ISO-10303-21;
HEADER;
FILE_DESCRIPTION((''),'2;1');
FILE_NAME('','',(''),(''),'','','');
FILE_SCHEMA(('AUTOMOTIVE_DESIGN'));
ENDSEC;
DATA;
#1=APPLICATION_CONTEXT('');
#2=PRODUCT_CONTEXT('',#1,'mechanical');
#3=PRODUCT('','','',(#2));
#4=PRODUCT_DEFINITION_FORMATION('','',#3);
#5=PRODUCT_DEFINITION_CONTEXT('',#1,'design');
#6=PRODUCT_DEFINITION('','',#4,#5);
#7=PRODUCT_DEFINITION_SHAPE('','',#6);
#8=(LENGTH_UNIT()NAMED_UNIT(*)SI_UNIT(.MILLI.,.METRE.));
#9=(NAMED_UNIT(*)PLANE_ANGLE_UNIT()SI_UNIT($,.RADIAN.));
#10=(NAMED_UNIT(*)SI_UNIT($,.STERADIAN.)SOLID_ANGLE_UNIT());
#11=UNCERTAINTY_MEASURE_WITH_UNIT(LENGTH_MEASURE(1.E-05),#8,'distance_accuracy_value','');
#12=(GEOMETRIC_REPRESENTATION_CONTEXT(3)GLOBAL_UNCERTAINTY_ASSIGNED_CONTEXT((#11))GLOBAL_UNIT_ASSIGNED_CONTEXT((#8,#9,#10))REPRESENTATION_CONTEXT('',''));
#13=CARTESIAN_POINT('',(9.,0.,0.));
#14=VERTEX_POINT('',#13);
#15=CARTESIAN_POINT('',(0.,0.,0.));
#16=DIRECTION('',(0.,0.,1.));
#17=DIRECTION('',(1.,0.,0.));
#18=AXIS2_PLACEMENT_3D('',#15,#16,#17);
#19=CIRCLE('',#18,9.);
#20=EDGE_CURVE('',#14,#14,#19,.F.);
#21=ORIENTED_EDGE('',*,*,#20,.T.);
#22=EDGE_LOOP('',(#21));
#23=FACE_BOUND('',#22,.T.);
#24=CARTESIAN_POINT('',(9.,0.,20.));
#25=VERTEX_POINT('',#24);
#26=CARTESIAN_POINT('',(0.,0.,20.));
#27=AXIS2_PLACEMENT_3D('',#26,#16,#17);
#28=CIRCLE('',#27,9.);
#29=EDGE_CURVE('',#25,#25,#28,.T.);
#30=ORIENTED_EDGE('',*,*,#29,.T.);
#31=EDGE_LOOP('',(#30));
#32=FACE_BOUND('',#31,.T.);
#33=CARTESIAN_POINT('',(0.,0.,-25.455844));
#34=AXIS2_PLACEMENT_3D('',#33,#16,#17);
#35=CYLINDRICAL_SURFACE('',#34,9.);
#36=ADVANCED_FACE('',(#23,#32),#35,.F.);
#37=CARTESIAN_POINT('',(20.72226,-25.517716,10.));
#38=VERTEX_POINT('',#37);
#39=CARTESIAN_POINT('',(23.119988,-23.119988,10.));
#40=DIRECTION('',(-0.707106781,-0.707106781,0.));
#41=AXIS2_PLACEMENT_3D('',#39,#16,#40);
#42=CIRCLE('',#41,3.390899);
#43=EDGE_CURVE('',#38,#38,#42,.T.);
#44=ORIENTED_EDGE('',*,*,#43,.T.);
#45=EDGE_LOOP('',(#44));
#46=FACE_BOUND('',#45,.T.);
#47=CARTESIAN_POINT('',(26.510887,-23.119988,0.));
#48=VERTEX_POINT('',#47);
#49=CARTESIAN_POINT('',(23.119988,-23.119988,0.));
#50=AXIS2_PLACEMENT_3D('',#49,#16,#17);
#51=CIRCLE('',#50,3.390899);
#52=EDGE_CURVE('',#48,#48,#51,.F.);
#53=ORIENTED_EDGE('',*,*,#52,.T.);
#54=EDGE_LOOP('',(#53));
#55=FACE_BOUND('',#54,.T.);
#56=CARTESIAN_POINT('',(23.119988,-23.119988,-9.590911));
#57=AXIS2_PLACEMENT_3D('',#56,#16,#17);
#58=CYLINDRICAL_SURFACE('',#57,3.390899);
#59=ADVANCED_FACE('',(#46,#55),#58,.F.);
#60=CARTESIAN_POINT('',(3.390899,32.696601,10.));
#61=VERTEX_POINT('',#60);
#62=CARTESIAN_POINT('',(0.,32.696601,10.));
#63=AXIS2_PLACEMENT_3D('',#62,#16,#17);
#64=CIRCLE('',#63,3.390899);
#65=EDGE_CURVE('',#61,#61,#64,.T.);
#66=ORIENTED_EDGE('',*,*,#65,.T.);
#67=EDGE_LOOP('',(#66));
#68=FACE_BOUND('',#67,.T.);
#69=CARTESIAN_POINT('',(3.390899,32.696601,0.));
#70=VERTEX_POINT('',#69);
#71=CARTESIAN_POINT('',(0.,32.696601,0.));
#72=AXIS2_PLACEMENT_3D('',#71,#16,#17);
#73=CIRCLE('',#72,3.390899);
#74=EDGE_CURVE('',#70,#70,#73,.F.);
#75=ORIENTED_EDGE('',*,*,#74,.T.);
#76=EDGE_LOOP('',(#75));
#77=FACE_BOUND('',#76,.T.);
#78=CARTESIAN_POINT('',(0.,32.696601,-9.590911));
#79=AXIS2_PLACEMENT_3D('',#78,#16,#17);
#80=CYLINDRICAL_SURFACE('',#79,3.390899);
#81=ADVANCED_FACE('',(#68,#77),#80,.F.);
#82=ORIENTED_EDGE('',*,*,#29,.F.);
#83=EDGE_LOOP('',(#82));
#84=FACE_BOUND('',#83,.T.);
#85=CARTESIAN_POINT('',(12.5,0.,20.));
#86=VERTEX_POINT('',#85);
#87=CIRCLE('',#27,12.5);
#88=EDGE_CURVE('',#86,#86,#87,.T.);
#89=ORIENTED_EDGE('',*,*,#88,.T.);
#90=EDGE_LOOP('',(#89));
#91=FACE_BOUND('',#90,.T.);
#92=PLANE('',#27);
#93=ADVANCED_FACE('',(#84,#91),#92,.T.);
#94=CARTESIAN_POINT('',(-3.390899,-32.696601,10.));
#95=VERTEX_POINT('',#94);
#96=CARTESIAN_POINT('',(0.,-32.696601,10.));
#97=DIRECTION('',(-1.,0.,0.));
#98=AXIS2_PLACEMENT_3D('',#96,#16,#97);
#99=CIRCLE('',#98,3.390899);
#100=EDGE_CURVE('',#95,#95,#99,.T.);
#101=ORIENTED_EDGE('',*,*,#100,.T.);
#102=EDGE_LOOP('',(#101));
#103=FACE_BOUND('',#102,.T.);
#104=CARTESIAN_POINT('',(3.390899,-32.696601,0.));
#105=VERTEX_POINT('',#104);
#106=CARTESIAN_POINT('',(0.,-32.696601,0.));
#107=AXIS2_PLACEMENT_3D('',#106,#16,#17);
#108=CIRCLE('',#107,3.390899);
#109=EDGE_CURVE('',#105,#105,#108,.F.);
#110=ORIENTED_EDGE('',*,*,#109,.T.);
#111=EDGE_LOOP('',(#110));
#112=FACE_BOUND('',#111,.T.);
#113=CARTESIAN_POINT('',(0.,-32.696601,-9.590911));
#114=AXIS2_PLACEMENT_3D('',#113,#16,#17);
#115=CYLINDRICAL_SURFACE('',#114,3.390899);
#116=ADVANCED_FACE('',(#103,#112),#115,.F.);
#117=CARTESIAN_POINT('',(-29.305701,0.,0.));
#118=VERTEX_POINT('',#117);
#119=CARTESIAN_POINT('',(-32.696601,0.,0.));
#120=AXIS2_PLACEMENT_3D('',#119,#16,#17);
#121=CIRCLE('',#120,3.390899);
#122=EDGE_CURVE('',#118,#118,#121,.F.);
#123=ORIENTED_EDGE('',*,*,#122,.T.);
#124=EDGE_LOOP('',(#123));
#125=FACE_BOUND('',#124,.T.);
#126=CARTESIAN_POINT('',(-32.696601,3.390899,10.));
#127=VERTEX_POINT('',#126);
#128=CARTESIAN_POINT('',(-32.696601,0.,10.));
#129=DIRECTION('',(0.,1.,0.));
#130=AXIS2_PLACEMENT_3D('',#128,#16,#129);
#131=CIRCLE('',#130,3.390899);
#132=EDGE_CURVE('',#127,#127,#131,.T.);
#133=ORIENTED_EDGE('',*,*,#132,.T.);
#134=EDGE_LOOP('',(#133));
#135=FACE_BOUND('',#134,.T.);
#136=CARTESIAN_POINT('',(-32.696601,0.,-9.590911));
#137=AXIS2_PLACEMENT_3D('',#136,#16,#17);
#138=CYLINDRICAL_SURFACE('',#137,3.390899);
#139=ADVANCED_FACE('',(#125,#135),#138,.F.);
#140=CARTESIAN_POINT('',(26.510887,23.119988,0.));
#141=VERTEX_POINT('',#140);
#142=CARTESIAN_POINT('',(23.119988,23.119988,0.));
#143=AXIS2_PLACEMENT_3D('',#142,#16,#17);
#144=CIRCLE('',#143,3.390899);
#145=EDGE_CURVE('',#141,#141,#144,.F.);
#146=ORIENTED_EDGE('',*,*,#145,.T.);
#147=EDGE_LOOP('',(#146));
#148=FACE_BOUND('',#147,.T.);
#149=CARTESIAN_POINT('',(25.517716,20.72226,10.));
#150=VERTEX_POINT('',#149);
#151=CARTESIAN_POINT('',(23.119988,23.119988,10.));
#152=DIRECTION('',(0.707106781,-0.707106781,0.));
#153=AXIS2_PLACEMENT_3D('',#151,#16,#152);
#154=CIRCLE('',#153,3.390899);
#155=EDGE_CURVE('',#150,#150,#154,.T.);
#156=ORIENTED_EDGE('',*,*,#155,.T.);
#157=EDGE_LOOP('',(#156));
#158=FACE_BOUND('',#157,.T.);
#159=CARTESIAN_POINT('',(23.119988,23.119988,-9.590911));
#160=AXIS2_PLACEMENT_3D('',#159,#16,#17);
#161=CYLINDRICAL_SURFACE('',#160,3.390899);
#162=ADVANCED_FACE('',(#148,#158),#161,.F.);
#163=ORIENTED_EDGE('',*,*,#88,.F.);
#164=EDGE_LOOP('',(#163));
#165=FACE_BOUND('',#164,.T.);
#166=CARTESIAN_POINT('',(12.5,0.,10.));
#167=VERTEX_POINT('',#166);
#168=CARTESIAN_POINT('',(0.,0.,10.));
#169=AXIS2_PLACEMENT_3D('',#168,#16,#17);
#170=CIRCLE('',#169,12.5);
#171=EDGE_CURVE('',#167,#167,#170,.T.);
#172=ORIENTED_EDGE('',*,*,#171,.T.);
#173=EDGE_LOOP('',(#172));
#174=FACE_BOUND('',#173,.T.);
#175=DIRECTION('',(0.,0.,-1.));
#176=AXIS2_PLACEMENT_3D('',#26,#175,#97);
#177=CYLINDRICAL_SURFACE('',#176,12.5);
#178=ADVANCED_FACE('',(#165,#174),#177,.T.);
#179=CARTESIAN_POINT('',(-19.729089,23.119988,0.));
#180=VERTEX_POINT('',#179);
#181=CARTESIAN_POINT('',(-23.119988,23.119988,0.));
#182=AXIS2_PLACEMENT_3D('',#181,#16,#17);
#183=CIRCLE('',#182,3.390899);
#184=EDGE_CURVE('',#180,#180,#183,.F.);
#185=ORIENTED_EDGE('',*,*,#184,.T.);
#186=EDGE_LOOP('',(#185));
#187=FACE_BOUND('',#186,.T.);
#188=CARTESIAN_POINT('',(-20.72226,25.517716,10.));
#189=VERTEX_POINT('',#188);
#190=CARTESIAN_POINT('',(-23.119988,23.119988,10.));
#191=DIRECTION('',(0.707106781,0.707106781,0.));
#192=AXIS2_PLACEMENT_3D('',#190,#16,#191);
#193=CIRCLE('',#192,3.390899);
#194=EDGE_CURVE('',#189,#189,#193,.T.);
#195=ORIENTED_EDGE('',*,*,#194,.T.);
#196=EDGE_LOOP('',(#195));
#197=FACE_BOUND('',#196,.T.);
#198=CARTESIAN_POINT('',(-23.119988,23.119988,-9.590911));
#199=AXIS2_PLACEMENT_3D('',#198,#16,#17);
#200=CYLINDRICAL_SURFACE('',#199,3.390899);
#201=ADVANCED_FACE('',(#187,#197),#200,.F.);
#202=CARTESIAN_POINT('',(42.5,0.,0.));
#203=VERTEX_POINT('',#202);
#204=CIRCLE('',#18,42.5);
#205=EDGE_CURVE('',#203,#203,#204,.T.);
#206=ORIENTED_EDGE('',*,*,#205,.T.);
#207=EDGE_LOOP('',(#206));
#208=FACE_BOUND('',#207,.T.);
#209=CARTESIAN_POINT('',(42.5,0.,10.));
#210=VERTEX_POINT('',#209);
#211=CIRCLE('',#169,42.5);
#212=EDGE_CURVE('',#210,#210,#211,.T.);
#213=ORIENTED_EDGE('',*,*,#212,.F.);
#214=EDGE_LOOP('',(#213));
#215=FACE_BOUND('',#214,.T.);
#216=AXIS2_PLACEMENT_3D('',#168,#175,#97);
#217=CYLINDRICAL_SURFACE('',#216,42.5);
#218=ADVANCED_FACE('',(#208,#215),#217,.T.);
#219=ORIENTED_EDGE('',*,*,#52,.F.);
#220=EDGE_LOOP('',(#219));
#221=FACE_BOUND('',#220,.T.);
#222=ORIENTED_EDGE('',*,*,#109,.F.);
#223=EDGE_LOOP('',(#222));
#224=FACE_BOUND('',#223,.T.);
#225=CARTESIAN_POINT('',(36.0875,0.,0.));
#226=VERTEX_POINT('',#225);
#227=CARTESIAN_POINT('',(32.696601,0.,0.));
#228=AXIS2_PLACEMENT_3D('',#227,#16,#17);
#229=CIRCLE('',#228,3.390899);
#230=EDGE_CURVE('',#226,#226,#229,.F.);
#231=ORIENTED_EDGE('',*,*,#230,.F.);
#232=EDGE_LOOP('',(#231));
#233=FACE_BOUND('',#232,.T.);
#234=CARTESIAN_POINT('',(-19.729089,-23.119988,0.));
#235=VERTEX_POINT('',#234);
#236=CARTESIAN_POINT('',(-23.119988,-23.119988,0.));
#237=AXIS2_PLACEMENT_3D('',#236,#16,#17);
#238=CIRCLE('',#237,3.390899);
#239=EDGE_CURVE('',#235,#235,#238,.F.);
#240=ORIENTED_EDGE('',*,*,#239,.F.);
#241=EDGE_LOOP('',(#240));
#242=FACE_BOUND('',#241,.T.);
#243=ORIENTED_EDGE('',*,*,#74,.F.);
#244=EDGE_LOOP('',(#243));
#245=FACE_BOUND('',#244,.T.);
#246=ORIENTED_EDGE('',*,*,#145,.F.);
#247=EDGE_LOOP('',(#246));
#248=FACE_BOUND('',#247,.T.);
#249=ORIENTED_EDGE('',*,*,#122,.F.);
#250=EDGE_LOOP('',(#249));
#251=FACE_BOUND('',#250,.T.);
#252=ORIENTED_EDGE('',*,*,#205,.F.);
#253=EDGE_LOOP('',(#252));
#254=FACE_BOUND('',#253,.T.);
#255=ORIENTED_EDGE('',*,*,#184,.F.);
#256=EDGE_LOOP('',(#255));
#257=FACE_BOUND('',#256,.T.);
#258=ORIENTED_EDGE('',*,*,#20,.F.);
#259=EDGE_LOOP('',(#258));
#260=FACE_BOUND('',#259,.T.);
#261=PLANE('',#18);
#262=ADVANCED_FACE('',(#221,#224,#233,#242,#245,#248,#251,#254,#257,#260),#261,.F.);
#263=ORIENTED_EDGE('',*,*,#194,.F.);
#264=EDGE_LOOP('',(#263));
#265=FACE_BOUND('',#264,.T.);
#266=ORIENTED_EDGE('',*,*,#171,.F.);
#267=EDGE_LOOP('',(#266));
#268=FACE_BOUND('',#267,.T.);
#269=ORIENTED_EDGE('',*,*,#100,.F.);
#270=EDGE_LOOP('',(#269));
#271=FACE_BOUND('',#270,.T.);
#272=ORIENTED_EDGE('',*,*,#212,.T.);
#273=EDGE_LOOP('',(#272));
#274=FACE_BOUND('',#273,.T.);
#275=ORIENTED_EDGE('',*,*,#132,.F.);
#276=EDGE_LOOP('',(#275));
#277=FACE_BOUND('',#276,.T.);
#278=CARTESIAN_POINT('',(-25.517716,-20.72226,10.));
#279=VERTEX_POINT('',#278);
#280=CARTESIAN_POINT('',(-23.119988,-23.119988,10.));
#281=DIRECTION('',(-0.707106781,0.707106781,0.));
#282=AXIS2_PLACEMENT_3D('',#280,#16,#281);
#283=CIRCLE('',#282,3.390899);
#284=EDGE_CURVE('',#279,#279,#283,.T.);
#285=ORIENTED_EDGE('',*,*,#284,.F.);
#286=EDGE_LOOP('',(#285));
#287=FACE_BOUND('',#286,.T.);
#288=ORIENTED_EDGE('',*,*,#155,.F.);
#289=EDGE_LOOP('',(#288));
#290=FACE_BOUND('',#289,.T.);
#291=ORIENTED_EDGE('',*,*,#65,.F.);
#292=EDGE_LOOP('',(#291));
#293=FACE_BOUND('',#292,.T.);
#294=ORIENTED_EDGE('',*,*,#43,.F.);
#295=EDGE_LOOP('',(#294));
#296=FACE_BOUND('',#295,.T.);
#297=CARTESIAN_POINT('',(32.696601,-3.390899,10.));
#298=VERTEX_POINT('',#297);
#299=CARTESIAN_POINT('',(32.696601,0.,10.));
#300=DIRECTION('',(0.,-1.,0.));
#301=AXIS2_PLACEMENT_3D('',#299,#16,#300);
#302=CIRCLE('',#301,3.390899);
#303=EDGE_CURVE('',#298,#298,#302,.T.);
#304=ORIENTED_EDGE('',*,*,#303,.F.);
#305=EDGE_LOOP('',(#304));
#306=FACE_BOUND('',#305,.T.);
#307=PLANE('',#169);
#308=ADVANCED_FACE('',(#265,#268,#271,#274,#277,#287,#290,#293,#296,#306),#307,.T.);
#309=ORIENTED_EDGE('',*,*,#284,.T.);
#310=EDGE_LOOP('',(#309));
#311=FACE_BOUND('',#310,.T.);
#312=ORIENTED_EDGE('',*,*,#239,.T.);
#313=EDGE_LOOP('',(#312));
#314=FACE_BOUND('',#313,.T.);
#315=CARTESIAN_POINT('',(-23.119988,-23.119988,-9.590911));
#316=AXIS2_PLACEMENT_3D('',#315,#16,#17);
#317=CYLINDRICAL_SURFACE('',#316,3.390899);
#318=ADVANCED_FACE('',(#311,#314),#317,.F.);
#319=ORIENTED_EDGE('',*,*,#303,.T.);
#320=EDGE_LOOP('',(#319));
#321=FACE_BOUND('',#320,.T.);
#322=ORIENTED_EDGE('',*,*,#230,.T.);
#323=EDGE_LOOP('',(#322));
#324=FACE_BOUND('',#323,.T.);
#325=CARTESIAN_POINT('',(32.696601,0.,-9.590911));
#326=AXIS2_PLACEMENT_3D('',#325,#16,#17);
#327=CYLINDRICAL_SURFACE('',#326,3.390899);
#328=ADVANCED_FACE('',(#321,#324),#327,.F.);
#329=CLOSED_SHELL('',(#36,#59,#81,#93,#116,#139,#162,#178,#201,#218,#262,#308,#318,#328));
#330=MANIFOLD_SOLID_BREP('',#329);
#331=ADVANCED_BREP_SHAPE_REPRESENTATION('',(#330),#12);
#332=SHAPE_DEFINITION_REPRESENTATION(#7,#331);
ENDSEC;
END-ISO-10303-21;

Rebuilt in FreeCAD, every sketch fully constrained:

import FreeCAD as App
import Part
import Sketcher
from FreeCAD import Vector
Q = App.Units.Quantity

doc = App.newDocument("Part")
body = doc.addObject("PartDesign::Body", "Body")

# Sketch on XY plane
sketch1 = body.newObject("Sketcher::SketchObject", "Sketch")
sketch1.AttachmentSupport = (doc.getObject("XY_Plane"), [""])
sketch1.MapMode = "FlatFace"
sketch1.addGeometry(Part.Circle(Vector(0, 0, 0), Vector(0, 0, 1), 42), False)
sketch1.addConstraint([
    Sketcher.Constraint("Coincident", 0, 3, -1, 1),
    Sketcher.Constraint("Diameter", 0, Q("85 mm")),
])
pad1 = body.newObject("PartDesign::Pad", "Pad")
pad1.Profile = sketch1
pad1.Length = 10

# Sketch on XY plane
sketch2 = body.newObject("Sketcher::SketchObject", "Sketch001")
sketch2.AttachmentSupport = (doc.getObject("XY_Plane"), [""])
sketch2.MapMode = "FlatFace"
sketch2.AttachmentOffset = App.Placement(Vector(0, 0, 10), App.Rotation())
sketch2.addGeometry(Part.Circle(Vector(0, 0, 0), Vector(0, 0, 1), 12), False)
sketch2.addConstraint([
    Sketcher.Constraint("Coincident", 0, 3, -1, 1),
    Sketcher.Constraint("Diameter", 0, Q("25 mm")),
])
pad2 = body.newObject("PartDesign::Pad", "Pad001")
pad2.Profile = sketch2
pad2.Length = 10

# Sketch on XY plane
sketch3 = body.newObject("Sketcher::SketchObject", "Sketch002")
sketch3.AttachmentSupport = (doc.getObject("XY_Plane"), [""])
sketch3.MapMode = "FlatFace"
sketch3.AttachmentOffset = App.Placement(Vector(0, 0, 20), App.Rotation())
sketch3.addGeometry(Part.Circle(Vector(0, 0, 0), Vector(0, 0, 1), 9), False)
sketch3.addConstraint([
    Sketcher.Constraint("Coincident", 0, 3, -1, 1),
    Sketcher.Constraint("Diameter", 0, Q("18 mm")),
])
pocket1 = body.newObject("PartDesign::Pocket", "Pocket")
pocket1.Profile = sketch3
pocket1.Length = 20

# Sketch on XY plane
sketch4 = body.newObject("Sketcher::SketchObject", "Sketch003")
sketch4.AttachmentSupport = (doc.getObject("XY_Plane"), [""])
sketch4.MapMode = "FlatFace"
sketch4.AttachmentOffset = App.Placement(Vector(0, 0, 10), App.Rotation())
sketch4.addGeometry(Part.Circle(Vector(0, 32.7, 0), Vector(0, 0, 1), 3.4), False)
sketch4.addConstraint([
    Sketcher.Constraint("PointOnObject", 0, 3, -2),
    Sketcher.Constraint("Diameter", 0, Q("6.781799 mm")),
    Sketcher.Constraint("DistanceY", -1, 1, 0, 3, Q("32.696601 mm")),
])
pocket2 = body.newObject("PartDesign::Pocket", "Pocket001")
pocket2.Profile = sketch4
pocket2.Length = 10
doc.recompute()

polarpattern = body.newObject("PartDesign::PolarPattern", "PolarPattern")
polarpattern.Originals = [pocket2]
polarpattern.Axis = (doc.getObject("Z_Axis"), [""])
polarpattern.Angle = 360
polarpattern.Occurrences = 8
body.Tip = polarpattern

doc.recompute()
